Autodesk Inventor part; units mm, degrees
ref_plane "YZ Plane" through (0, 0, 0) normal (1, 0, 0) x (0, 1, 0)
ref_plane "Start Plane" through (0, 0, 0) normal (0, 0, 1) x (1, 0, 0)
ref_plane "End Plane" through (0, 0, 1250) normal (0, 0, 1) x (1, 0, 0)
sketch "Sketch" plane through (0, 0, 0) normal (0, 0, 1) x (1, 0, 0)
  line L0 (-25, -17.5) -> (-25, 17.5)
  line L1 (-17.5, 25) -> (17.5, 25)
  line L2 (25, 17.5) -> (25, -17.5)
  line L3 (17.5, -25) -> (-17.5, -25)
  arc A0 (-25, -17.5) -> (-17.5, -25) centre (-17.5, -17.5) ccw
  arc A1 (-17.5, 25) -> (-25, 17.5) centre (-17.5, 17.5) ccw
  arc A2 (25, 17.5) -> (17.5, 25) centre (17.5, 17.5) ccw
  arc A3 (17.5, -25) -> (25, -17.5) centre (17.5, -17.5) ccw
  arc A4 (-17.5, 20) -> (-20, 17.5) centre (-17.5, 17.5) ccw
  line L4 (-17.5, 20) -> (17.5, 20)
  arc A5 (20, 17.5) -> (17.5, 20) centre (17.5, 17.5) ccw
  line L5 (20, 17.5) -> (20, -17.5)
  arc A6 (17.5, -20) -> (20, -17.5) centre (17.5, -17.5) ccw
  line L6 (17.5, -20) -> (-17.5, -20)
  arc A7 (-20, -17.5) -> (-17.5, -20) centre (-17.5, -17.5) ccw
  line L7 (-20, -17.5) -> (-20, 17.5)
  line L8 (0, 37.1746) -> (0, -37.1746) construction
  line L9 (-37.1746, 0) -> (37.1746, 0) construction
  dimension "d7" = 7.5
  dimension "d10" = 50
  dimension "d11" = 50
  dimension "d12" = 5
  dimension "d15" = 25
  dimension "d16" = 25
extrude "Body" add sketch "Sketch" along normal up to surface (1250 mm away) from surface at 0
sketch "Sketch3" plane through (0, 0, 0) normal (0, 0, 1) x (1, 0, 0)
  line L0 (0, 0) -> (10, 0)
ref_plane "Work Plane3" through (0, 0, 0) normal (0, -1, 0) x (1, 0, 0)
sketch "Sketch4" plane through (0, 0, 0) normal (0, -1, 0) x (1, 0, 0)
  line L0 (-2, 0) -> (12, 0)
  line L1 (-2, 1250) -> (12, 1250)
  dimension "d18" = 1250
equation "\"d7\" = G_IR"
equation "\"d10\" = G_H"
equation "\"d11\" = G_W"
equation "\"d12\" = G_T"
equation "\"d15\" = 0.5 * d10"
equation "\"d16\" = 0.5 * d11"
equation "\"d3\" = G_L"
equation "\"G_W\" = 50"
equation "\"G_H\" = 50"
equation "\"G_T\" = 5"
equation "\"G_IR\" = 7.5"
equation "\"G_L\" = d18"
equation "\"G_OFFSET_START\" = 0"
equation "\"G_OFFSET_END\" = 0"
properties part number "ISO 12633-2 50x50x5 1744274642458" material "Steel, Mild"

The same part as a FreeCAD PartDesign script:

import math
import FreeCAD as App
import Part
import Sketcher
Q = App.Units.Quantity

doc = App.newDocument("Part")
body = doc.addObject("PartDesign::Body", "Body")

sketch1 = body.newObject("Sketcher::SketchObject", "Sketch")
sketch1.AttachmentSupport = (doc.getObject("XY_Plane"), [""])
sketch1.MapMode = "FlatFace"
sketch1.addGeometry([
    Part.LineSegment(App.Vector(-25, 17.5, 0), App.Vector(-25, -17.5, 0)),
    Part.ArcOfCircle(Part.Circle(App.Vector(-17.5, -17.5, 0), App.Vector(0, 0, 1), 7.5), math.radians(180), math.radians(270)),
    Part.LineSegment(App.Vector(-17.5, -25, 0), App.Vector(17.5, -25, 0)),
    Part.ArcOfCircle(Part.Circle(App.Vector(17.5, -17.5, 0), App.Vector(0, 0, 1), 7.5), math.radians(-90), math.radians(0)),
    Part.LineSegment(App.Vector(25, -17.5, 0), App.Vector(25, 17.5, 0)),
    Part.ArcOfCircle(Part.Circle(App.Vector(17.5, 17.5, 0), App.Vector(0, 0, 1), 7.5), math.radians(0), math.radians(90)),
    Part.LineSegment(App.Vector(17.5, 25, 0), App.Vector(-17.5, 25, 0)),
    Part.ArcOfCircle(Part.Circle(App.Vector(-17.5, 17.5, 0), App.Vector(0, 0, 1), 7.5), math.radians(90), math.radians(180)),
    Part.ArcOfCircle(Part.Circle(App.Vector(-17.5, 17.5, 0), App.Vector(0, 0, 1), 2.5), math.radians(90), math.radians(180)),
    Part.LineSegment(App.Vector(-17.5, 20, 0), App.Vector(17.5, 20, 0)),
    Part.ArcOfCircle(Part.Circle(App.Vector(17.5, 17.5, 0), App.Vector(0, 0, 1), 2.5), math.radians(0), math.radians(90)),
    Part.LineSegment(App.Vector(20, 17.5, 0), App.Vector(20, -17.5, 0)),
    Part.ArcOfCircle(Part.Circle(App.Vector(17.5, -17.5, 0), App.Vector(0, 0, 1), 2.5), math.radians(-90), math.radians(0)),
    Part.LineSegment(App.Vector(17.5, -20, 0), App.Vector(-17.5, -20, 0)),
    Part.ArcOfCircle(Part.Circle(App.Vector(-17.5, -17.5, 0), App.Vector(0, 0, 1), 2.5), math.radians(180), math.radians(270)),
    Part.LineSegment(App.Vector(-20, -17.5, 0), App.Vector(-20, 17.5, 0)),
], False)
sketch1.addConstraint([
    Sketcher.Constraint("Tangent", 0, 2, 1, 1),
    Sketcher.Constraint("Tangent", 1, 2, 2, 1),
    Sketcher.Constraint("Tangent", 2, 2, 3, 1),
    Sketcher.Constraint("Tangent", 3, 2, 4, 1),
    Sketcher.Constraint("Tangent", 4, 2, 5, 1),
    Sketcher.Constraint("Tangent", 5, 2, 6, 1),
    Sketcher.Constraint("Tangent", 6, 2, 7, 1),
    Sketcher.Constraint("Tangent", 7, 2, 0, 1),
    Sketcher.Constraint("Tangent", 8, 1, 9, 1),
    Sketcher.Constraint("Tangent", 9, 2, 10, 2),
    Sketcher.Constraint("Tangent", 10, 1, 11, 1),
    Sketcher.Constraint("Tangent", 11, 2, 12, 2),
    Sketcher.Constraint("Tangent", 12, 1, 13, 1),
    Sketcher.Constraint("Tangent", 13, 2, 14, 2),
    Sketcher.Constraint("Tangent", 14, 1, 15, 1),
    Sketcher.Constraint("Tangent", 15, 2, 8, 2),
    Sketcher.Constraint("Vertical", 0),
    Sketcher.Constraint("Horizontal", 2),
    Sketcher.Constraint("Vertical", 4),
    Sketcher.Constraint("Horizontal", 6),
    Sketcher.Constraint("Horizontal", 9),
    Sketcher.Constraint("Vertical", 11),
    Sketcher.Constraint("Horizontal", 13),
    Sketcher.Constraint("Vertical", 15),
    Sketcher.Constraint("Coincident", 8, 3, 7, 3),
    Sketcher.Constraint("Coincident", 10, 3, 5, 3),
    Sketcher.Constraint("Coincident", 12, 3, 3, 3),
    Sketcher.Constraint("Equal", 1, 3),
    Sketcher.Constraint("Equal", 3, 5),
    Sketcher.Constraint("Equal", 5, 7),
    Sketcher.Constraint("Equal", 12, 14),
    Sketcher.Constraint("Symmetric", 1, 3, 5, 3, -1, 1),
    Sketcher.Constraint("Equal", 13, 0),
    Sketcher.Constraint("Radius", 1, Q("7.5 mm")),
    Sketcher.Constraint("Radius", 8, Q("2.5 mm")),
    Sketcher.Constraint("DistanceX", 0, 2, -1, 1, Q("25 mm")),
])
pad1 = body.newObject("PartDesign::Pad", "Pad")
pad1.Profile = sketch1
pad1.Length = 1250

doc.recompute()
